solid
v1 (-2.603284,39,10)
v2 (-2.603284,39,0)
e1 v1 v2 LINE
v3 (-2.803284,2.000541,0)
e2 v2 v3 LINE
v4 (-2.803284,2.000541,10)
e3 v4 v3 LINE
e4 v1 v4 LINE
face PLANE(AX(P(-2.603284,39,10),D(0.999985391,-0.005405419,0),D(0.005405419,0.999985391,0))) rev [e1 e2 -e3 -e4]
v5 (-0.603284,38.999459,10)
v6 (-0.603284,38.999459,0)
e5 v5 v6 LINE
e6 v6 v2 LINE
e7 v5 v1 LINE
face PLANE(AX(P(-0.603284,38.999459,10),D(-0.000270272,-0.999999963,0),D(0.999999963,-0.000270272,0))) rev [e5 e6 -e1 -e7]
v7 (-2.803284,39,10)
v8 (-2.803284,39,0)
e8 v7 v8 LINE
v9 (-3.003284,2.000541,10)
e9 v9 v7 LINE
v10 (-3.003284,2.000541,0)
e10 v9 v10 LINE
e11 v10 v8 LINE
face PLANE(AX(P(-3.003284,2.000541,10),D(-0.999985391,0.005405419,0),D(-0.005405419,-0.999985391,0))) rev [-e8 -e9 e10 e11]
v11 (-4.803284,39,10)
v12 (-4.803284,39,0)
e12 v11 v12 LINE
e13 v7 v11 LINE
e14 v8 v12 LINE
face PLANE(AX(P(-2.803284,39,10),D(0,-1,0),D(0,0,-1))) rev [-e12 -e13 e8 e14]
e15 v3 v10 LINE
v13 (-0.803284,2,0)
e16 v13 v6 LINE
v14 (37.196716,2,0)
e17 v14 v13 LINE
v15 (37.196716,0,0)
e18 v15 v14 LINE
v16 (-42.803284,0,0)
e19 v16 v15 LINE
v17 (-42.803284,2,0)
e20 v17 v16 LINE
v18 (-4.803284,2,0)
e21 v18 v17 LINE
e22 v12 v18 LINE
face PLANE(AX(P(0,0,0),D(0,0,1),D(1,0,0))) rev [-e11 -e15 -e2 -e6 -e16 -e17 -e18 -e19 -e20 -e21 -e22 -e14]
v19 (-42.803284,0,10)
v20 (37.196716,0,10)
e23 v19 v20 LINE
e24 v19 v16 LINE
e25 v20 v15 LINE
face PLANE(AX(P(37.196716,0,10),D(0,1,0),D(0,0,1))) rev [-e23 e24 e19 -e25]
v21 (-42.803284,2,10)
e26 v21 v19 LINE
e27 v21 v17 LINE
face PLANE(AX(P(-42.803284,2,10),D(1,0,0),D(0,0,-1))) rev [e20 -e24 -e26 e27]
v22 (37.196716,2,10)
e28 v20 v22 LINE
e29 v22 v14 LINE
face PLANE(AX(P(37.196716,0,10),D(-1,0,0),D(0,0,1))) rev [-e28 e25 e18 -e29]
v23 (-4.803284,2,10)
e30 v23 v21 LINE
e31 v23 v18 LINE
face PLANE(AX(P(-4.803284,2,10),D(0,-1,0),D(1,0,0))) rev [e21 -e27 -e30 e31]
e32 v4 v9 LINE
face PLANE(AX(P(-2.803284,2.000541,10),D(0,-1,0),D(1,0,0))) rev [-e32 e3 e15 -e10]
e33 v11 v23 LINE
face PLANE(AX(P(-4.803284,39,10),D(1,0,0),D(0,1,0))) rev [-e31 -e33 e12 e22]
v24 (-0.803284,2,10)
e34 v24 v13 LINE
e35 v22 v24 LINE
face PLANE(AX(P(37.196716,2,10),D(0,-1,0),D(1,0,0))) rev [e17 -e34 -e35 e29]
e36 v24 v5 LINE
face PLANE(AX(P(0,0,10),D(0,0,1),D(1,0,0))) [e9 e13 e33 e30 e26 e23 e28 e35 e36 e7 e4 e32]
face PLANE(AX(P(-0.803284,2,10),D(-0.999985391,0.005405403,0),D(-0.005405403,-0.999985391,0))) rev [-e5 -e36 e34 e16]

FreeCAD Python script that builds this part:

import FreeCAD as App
import Part
import Sketcher

V = App.Vector
Q = App.Units.Quantity


def add_polygon(sketch, points):
    """Adds a closed chain of lines whose ends are joined by coincident constraints."""
    first, n = sketch.GeometryCount, len(points)
    for a, b in zip(points, points[1:] + points[:1]):
        sketch.addGeometry(Part.LineSegment(App.Vector(*a, 0), App.Vector(*b, 0)), False)
    for i in range(n):
        sketch.addConstraint(Sketcher.Constraint("Coincident", first + i, 2, first + (i + 1) % n, 1))

doc = App.newDocument("Part")
body = doc.addObject("PartDesign::Body", "Body")

# Sketch on XY plane
sketch1 = doc.addObject("Sketcher::SketchObject", "Sketch")
body.addObject(sketch1)
sketch1.AttachmentSupport = (doc.XY_Plane, [""])
sketch1.MapMode = "FlatFace"
add_polygon(sketch1, [(-42.803284, 0), (37.196716, 0), (37.196716, 2), (-0.803284, 2), (-0.603284, 38.999459), (-2.603284, 39), (-2.803284, 2.000541), (-3.003284, 2.000541), (-2.803284, 39), (-4.803284, 39), (-4.803284, 2), (-42.803284, 2)])  # lines 0-11
sketch1.addConstraint(Sketcher.Constraint("Horizontal", 0))
sketch1.addConstraint(Sketcher.Constraint("Vertical", 1))
sketch1.addConstraint(Sketcher.Constraint("Horizontal", 2))
sketch1.addConstraint(Sketcher.Constraint("Horizontal", 6))
sketch1.addConstraint(Sketcher.Constraint("Horizontal", 8))
sketch1.addConstraint(Sketcher.Constraint("Vertical", 9))
sketch1.addConstraint(Sketcher.Constraint("Horizontal", 10))
sketch1.addConstraint(Sketcher.Constraint("Vertical", 11))
sketch1.addConstraint(Sketcher.Constraint("PointOnObject", 0, 2, -1))
sketch1.addConstraint(Sketcher.Constraint("Parallel", 3, 5))
sketch1.addConstraint(Sketcher.Constraint("Parallel", 5, 7))
sketch1.addConstraint(Sketcher.Constraint("Horizontal", 4, 2, 7, 2))
sketch1.addConstraint(Sketcher.Constraint("Horizontal", 2, 2, 9, 2))
sketch1.addConstraint(Sketcher.Constraint("Vertical", 5, 2, 7, 2))
sketch1.addConstraint(Sketcher.Constraint("Equal", 2, 10))
sketch1.addConstraint(Sketcher.Constraint("Equal", 8, 1))
sketch1.addConstraint(Sketcher.Constraint("Equal", 3, 5))
sketch1.addConstraint(Sketcher.Constraint("DistanceX", 0, 1, 0, 2, Q("80 mm")))
sketch1.addConstraint(Sketcher.Constraint("DistanceX", 2, 2, 2, 1, Q("38 mm")))
sketch1.addConstraint(Sketcher.Constraint("DistanceX", 8, 2, 8, 1, Q("2 mm")))
sketch1.addConstraint(Sketcher.Constraint("DistanceY", 9, 2, 9, 1, Q("37 mm")))
sketch1.addConstraint(Sketcher.Constraint("Distance", 3, Q("37 mm")))
sketch1.addConstraint(Sketcher.Constraint("DistanceX", 6, 2, 6, 1, Q("0.2 mm")))
sketch1.addConstraint(Sketcher.Constraint("DistanceX", -1, 1, 0, 2, Q("37.196716 mm")))
pad1 = doc.addObject("PartDesign::Pad", "Pad")
body.addObject(pad1)
pad1.Profile = sketch1
pad1.Length = 10

doc.recompute()
